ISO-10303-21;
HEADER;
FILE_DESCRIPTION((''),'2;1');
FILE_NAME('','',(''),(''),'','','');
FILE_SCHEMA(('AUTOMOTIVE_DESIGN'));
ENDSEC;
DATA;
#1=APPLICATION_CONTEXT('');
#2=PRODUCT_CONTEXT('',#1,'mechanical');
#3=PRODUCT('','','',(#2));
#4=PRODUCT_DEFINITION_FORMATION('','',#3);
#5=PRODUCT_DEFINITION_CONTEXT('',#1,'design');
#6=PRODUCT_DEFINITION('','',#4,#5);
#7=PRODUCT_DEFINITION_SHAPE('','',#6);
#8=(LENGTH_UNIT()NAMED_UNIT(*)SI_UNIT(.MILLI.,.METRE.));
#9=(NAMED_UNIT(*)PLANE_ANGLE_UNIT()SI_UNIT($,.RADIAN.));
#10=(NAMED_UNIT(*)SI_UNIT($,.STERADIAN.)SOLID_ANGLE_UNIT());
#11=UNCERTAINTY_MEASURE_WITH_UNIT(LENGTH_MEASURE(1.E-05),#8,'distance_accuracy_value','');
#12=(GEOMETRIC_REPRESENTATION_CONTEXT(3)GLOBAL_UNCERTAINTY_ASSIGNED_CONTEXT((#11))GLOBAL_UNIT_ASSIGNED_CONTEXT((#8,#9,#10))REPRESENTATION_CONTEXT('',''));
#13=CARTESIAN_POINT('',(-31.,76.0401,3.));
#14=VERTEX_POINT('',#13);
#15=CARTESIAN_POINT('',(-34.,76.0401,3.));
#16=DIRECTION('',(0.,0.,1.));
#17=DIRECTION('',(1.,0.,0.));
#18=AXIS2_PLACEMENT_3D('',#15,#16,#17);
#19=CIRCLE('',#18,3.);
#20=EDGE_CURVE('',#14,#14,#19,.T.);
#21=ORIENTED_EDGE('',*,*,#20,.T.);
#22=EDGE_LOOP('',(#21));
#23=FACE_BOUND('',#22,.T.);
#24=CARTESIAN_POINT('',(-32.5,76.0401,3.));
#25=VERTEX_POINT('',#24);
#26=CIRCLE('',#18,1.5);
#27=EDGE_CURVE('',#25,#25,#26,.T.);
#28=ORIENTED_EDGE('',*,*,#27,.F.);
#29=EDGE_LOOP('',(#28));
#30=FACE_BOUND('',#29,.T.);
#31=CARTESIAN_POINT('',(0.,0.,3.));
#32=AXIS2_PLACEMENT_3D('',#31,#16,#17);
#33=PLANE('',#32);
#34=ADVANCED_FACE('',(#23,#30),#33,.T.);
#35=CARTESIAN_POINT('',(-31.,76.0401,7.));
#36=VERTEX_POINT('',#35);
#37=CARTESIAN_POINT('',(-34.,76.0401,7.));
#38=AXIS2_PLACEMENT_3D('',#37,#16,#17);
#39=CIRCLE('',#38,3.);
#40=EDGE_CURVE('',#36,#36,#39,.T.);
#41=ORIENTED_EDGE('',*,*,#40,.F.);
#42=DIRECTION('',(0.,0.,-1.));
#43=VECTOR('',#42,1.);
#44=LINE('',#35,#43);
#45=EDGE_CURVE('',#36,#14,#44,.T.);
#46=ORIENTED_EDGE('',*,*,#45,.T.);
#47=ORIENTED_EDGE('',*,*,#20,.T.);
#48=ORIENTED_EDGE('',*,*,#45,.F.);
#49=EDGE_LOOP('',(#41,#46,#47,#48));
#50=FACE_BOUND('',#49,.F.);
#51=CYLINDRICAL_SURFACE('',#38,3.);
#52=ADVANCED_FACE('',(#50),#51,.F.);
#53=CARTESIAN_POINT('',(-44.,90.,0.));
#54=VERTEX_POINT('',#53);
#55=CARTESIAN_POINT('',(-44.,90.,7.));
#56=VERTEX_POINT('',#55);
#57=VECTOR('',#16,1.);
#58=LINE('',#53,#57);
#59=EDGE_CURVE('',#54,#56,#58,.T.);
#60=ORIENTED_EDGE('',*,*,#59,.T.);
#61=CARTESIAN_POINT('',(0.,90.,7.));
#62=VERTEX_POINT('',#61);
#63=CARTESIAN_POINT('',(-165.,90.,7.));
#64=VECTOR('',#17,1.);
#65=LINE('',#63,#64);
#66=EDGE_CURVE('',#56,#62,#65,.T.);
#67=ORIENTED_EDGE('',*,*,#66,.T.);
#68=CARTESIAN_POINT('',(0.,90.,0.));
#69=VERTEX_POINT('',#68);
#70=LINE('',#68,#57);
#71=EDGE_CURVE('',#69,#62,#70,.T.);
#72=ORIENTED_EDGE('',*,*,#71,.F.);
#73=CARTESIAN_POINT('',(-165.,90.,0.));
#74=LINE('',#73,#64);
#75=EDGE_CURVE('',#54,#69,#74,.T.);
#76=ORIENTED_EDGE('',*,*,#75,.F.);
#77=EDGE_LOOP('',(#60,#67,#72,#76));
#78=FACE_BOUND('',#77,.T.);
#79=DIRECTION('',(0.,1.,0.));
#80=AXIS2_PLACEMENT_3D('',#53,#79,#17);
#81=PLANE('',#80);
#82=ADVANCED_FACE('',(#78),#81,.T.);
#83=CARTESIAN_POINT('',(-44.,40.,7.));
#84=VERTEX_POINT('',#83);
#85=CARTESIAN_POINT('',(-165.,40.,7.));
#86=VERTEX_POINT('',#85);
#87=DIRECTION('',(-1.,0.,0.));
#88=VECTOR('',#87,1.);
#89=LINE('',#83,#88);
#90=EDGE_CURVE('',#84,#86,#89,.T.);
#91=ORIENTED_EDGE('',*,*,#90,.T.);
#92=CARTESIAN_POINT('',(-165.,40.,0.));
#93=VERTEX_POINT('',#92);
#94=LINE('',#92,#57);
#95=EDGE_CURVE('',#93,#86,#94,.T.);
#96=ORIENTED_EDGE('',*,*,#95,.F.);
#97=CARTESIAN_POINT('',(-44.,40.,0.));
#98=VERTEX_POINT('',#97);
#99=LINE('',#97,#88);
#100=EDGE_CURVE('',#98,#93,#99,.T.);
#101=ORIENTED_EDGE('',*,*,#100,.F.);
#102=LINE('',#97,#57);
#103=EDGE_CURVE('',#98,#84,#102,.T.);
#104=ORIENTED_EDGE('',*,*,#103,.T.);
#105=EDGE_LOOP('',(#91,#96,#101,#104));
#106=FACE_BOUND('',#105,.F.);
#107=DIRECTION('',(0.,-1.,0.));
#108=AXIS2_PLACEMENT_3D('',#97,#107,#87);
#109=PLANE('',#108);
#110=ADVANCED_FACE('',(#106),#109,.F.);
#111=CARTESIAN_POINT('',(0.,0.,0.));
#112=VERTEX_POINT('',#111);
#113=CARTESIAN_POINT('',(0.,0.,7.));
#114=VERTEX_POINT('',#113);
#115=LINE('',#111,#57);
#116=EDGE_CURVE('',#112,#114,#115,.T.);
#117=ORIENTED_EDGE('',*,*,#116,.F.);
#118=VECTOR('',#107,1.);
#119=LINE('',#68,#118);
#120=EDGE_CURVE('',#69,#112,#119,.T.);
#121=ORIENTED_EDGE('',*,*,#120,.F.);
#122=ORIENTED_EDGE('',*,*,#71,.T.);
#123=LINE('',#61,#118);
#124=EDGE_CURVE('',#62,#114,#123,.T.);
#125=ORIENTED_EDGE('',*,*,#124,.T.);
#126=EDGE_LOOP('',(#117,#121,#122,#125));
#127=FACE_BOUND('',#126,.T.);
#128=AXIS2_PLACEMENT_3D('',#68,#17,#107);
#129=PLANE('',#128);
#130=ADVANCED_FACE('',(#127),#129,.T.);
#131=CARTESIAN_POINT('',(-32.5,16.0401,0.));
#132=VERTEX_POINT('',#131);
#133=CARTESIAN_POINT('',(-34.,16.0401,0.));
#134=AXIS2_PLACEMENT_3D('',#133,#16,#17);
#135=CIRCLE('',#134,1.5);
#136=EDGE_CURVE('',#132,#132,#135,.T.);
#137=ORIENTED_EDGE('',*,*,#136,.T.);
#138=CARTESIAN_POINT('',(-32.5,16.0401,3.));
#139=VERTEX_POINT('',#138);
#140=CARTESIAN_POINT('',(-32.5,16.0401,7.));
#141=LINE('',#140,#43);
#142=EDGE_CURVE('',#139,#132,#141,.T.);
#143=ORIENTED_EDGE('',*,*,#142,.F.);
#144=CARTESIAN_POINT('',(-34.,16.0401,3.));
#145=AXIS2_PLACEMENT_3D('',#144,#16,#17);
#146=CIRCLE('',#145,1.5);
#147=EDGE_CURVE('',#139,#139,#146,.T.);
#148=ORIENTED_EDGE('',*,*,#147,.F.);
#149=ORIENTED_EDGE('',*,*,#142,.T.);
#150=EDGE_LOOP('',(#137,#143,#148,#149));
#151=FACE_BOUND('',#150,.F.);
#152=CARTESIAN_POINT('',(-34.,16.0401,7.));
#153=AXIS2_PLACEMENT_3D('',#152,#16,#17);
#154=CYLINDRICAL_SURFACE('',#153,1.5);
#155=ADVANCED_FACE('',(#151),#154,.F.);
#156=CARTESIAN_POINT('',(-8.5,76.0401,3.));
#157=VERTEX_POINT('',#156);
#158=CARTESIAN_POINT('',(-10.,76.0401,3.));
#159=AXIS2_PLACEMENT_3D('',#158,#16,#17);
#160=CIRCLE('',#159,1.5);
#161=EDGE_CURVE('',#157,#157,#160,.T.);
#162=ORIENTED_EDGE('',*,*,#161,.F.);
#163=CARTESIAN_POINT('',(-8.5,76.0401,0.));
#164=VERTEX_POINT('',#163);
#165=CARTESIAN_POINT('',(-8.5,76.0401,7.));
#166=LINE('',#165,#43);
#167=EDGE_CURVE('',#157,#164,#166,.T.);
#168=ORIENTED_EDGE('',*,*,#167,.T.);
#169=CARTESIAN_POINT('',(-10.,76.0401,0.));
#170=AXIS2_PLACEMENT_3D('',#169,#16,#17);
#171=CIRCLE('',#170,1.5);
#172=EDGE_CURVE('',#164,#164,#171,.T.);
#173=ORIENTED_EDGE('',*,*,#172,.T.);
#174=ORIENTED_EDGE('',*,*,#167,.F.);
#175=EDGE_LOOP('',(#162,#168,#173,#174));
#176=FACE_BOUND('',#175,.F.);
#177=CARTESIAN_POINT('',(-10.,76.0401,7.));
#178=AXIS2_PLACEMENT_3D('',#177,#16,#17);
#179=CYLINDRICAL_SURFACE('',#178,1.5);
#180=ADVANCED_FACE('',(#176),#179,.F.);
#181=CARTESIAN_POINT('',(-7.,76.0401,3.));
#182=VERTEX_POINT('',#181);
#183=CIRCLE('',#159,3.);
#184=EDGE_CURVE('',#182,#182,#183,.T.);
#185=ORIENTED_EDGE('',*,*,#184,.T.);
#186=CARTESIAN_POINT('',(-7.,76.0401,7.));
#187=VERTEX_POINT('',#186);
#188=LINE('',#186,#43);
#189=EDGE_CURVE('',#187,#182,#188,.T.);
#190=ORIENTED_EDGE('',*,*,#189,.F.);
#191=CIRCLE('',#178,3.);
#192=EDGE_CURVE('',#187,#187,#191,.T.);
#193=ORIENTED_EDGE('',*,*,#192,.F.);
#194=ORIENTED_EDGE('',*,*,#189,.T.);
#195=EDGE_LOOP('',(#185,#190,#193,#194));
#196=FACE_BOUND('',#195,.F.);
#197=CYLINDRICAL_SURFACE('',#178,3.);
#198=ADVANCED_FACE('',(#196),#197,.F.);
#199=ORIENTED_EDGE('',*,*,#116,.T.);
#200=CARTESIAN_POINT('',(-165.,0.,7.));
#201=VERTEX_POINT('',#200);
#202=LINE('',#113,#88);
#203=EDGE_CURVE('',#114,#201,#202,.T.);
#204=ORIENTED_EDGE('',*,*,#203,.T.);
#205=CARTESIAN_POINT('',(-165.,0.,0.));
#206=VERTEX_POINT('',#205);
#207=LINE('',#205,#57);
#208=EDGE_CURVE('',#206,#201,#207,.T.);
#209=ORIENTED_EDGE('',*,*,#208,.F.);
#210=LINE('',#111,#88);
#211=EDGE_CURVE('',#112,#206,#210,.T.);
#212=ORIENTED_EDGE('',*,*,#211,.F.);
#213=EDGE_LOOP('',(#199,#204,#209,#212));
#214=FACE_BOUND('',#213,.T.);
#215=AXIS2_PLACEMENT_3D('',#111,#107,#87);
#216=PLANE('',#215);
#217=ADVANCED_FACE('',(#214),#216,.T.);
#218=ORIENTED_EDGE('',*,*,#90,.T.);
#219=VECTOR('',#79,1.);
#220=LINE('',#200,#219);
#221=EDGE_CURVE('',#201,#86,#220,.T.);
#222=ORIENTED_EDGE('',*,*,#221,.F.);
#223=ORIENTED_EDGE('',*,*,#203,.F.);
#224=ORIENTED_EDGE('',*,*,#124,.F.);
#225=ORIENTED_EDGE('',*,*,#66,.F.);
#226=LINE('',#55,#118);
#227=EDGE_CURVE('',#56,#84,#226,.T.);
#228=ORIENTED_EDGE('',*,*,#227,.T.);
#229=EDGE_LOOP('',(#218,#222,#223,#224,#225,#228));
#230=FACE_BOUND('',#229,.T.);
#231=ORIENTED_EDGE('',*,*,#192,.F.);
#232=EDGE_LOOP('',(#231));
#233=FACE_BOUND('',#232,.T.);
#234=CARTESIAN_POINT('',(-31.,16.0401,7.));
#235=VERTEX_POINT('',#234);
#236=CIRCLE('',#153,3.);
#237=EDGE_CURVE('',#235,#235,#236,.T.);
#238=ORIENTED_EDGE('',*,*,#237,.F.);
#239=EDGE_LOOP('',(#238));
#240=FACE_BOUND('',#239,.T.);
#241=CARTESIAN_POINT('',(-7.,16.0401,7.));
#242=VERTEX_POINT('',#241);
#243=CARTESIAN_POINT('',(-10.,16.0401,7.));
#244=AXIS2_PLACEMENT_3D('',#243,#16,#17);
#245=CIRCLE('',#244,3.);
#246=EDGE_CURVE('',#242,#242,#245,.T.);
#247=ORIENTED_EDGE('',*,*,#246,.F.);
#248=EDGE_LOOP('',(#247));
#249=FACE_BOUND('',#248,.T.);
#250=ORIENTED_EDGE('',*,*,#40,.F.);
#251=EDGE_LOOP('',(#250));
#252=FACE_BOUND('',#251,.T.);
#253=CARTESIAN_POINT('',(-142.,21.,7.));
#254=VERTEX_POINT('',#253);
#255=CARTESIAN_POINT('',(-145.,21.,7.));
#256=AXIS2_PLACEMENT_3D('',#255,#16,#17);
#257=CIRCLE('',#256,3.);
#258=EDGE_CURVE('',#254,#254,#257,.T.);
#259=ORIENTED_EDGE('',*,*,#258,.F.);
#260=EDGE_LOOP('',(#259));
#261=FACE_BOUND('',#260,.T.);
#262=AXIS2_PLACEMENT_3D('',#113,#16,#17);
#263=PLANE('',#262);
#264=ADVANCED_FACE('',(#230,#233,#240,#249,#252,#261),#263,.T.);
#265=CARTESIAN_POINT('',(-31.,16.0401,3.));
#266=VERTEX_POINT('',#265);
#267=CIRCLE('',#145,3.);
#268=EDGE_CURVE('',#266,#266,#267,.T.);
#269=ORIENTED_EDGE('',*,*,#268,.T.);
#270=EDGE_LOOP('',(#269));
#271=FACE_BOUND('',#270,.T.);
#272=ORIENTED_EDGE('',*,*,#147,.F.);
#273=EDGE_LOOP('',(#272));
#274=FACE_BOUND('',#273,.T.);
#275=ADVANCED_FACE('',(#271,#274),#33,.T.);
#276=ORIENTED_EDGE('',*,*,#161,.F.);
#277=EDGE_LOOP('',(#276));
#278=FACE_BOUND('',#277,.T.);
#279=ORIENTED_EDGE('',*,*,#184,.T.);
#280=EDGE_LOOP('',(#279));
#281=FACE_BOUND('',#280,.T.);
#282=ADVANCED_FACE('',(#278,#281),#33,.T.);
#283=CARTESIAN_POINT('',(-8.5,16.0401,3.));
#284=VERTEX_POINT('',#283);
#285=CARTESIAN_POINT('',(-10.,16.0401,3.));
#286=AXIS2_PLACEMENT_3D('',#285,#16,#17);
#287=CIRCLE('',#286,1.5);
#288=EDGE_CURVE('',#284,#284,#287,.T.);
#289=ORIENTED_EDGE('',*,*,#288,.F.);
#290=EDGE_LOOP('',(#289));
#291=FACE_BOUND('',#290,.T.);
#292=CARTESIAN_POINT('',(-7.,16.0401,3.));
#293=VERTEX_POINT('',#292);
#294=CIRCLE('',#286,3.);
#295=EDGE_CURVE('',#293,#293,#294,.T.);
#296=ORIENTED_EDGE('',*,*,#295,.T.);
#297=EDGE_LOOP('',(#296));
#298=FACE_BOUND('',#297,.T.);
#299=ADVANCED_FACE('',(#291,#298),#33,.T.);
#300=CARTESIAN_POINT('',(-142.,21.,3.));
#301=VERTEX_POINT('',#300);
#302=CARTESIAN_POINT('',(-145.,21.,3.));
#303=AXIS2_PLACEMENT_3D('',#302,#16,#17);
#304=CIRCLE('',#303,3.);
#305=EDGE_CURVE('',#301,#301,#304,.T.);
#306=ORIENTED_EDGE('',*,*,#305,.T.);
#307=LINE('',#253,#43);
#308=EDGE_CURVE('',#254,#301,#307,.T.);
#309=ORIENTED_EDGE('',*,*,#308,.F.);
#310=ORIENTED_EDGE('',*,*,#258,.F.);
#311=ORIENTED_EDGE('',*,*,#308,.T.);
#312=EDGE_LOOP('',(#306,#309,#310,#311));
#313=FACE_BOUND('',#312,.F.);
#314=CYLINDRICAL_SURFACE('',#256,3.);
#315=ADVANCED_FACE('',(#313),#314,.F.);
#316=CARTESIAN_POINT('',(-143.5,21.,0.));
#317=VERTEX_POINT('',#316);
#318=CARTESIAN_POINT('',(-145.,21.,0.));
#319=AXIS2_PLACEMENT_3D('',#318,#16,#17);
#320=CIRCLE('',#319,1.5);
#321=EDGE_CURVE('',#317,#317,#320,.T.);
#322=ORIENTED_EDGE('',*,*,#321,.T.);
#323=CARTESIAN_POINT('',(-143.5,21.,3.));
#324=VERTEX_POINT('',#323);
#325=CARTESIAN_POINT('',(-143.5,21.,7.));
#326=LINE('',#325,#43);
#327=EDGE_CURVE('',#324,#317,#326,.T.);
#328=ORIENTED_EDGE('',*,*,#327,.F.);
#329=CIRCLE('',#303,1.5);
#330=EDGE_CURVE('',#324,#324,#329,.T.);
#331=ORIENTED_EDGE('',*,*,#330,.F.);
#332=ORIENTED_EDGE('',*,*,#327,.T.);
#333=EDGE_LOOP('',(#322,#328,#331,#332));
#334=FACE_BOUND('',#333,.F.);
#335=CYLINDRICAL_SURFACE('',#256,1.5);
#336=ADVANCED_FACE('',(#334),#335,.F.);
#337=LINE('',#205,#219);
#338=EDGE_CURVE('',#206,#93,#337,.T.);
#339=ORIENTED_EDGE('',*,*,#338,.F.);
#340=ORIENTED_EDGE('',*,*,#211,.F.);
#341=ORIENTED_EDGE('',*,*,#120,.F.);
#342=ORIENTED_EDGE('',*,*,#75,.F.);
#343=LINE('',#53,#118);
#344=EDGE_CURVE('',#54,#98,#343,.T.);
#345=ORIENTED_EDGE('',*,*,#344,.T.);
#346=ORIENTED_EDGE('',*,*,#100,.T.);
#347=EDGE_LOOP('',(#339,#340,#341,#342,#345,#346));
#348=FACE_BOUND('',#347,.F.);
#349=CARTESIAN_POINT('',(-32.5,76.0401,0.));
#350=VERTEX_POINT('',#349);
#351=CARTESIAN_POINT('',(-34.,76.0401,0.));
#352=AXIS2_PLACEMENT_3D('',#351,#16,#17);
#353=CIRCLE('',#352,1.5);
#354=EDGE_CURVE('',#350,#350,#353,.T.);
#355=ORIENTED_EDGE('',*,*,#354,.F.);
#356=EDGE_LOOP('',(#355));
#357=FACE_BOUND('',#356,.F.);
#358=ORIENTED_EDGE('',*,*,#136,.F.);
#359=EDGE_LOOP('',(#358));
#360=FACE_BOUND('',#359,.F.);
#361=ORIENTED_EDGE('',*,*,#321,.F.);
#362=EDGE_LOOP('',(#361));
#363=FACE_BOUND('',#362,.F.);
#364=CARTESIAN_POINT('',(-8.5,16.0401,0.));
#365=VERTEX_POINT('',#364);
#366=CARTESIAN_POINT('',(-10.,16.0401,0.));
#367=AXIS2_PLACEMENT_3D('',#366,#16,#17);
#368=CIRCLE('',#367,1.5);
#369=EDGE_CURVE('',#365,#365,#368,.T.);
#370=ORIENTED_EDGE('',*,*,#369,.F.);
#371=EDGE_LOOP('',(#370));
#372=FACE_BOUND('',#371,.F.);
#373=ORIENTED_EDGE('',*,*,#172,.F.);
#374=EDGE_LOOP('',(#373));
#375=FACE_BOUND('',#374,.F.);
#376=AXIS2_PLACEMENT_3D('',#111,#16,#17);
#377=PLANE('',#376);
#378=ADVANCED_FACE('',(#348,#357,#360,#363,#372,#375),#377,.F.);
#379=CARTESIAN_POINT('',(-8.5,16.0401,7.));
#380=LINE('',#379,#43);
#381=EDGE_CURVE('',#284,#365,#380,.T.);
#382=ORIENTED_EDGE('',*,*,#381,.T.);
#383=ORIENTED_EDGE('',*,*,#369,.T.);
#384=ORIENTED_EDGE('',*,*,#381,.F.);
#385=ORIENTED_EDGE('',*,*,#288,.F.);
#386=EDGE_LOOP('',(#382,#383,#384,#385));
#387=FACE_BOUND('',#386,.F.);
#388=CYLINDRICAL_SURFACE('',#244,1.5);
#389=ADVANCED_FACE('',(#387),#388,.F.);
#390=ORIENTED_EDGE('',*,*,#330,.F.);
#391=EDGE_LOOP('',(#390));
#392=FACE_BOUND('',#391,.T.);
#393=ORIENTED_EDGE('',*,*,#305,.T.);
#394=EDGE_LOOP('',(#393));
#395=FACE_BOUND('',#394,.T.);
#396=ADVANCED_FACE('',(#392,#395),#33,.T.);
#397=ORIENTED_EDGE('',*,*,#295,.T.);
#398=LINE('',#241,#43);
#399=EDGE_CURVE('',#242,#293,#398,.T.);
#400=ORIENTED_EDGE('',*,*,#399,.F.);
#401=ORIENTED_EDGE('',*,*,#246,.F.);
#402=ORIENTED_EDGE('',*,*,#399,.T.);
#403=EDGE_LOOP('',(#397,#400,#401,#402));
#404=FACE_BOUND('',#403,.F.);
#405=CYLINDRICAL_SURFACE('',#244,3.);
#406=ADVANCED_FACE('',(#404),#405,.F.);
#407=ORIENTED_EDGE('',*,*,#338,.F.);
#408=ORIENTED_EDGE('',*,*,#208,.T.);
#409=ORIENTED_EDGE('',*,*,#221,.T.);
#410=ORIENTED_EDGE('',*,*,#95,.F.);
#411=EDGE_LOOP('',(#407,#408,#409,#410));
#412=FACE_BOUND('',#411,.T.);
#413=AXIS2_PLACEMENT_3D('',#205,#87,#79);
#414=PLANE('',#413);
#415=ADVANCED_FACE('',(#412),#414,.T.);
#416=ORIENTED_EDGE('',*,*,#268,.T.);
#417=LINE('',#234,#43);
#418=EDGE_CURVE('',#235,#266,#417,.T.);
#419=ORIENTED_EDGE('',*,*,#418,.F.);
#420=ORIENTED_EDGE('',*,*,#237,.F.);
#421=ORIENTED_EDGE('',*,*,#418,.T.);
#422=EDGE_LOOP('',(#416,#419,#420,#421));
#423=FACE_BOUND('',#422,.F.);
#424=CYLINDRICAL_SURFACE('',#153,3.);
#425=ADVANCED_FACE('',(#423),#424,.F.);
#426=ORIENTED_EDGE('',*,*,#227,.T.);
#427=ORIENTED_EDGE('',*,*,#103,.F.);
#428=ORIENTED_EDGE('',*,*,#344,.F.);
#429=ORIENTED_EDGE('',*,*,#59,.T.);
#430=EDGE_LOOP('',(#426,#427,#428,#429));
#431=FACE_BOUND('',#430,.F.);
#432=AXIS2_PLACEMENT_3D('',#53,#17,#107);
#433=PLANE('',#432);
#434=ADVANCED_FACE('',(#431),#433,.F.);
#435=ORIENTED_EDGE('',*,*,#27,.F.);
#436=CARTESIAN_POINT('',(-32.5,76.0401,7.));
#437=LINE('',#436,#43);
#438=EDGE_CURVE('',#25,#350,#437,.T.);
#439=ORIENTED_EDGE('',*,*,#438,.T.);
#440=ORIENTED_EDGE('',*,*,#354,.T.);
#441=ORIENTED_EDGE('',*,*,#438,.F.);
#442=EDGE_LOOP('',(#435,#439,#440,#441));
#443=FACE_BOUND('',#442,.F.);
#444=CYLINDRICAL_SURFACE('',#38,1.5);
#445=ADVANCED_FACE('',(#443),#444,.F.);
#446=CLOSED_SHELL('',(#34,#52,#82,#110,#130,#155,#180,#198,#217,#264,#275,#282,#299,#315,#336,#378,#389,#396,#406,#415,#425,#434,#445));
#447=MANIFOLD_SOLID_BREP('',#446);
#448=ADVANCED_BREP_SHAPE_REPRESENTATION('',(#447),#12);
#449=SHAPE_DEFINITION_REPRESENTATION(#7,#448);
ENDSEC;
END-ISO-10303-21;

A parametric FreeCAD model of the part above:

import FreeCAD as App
import Part
import Sketcher


def add_polygon(sketch, points):
    """Adds a closed chain of lines whose ends are joined by coincident constraints."""
    first, n = sketch.GeometryCount, len(points)
    for a, b in zip(points, points[1:] + points[:1]):
        sketch.addGeometry(Part.LineSegment(App.Vector(*a, 0), App.Vector(*b, 0)), False)
    for i in range(n):
        sketch.addConstraint(Sketcher.Constraint("Coincident", first + i, 2, first + (i + 1) % n, 1))

doc = App.newDocument("Part")
body = doc.addObject("PartDesign::Body", "Body")

# Sketch on XY plane
sketch1 = body.newObject("Sketcher::SketchObject", "Sketch")
sketch1.AttachmentSupport = (doc.getObject("XY_Plane"), [""])
sketch1.MapMode = "FlatFace"
add_polygon(sketch1, [(-165, 0), (0, 0), (0, 90), (-44, 90), (-44, 40), (-165, 40)])  # lines 0-5
sketch1.addConstraint(Sketcher.Constraint("Horizontal", 0))
sketch1.addConstraint(Sketcher.Constraint("Vertical", 1))
sketch1.addConstraint(Sketcher.Constraint("Horizontal", 2))
sketch1.addConstraint(Sketcher.Constraint("Vertical", 3))
sketch1.addConstraint(Sketcher.Constraint("Horizontal", 4))
sketch1.addConstraint(Sketcher.Constraint("Vertical", 5))
sketch1.addConstraint(Sketcher.Constraint("Coincident", 0, 2, -1, 1))
sketch1.addConstraint(Sketcher.Constraint("DistanceX", 0, 1, 0, 2, 165.0))
sketch1.addConstraint(Sketcher.Constraint("DistanceX", 4, 2, 4, 1, 121.0))
sketch1.addConstraint(Sketcher.Constraint("DistanceY", 1, 1, 1, 2, 90.0))
sketch1.addConstraint(Sketcher.Constraint("DistanceY", 3, 2, 3, 1, 50.0))
pad1 = body.newObject("PartDesign::Pad", "Pad")
pad1.Profile = sketch1
pad1.Length = 7

# Sketch on XY plane
sketch2 = body.newObject("Sketcher::SketchObject", "Sketch001")
sketch2.AttachmentSupport = (doc.getObject("XY_Plane"), [""])
sketch2.MapMode = "FlatFace"
sketch2.AttachmentOffset = App.Placement(App.Vector(0, 0, 7), App.Rotation())
sketch2.addGeometry(Part.Circle(App.Vector(-10, 76, 0), App.Vector(0, 0, 1), 1.5), False)
sketch2.addGeometry(Part.Circle(App.Vector(-34, 76, 0), App.Vector(0, 0, 1), 1.5), False)
sketch2.addGeometry(Part.Circle(App.Vector(-10, 16, 0), App.Vector(0, 0, 1), 1.5), False)
sketch2.addGeometry(Part.Circle(App.Vector(-34, 16, 0), App.Vector(0, 0, 1), 1.5), False)
sketch2.addGeometry(Part.Circle(App.Vector(-145, 21, 0), App.Vector(0, 0, 1), 1.5), False)
sketch2.addConstraint(Sketcher.Constraint("Equal", 0, 1))
sketch2.addConstraint(Sketcher.Constraint("Equal", 1, 2))
sketch2.addConstraint(Sketcher.Constraint("Equal", 2, 3))
sketch2.addConstraint(Sketcher.Constraint("Equal", 3, 4))
sketch2.addConstraint(Sketcher.Constraint("Horizontal", 0, 3, 1, 3))
sketch2.addConstraint(Sketcher.Constraint("Horizontal", 2, 3, 3, 3))
sketch2.addConstraint(Sketcher.Constraint("Vertical", 0, 3, 2, 3))
sketch2.addConstraint(Sketcher.Constraint("Vertical", 1, 3, 3, 3))
sketch2.addConstraint(Sketcher.Constraint("Diameter", 0, 3.0))
sketch2.addConstraint(Sketcher.Constraint("DistanceY", -1, 1, 4, 3, 21.0))
sketch2.addConstraint(Sketcher.Constraint("DistanceX", 1, 3, 0, 3, 24.0))
sketch2.addConstraint(Sketcher.Constraint("DistanceY", 2, 3, 0, 3, 60.0))
sketch2.addConstraint(Sketcher.Constraint("DistanceX", 0, 3, -1, 1, 10.0))
sketch2.addConstraint(Sketcher.Constraint("DistanceX", 4, 3, -1, 1, 145.0))
sketch2.addConstraint(Sketcher.Constraint("DistanceY", -1, 1, 0, 3, 76.04))
pocket1 = body.newObject("PartDesign::Pocket", "Pocket")
pocket1.Profile = sketch2
pocket1.Length = 10

# Sketch on XY plane
sketch3 = body.newObject("Sketcher::SketchObject", "Sketch002")
sketch3.AttachmentSupport = (doc.getObject("XY_Plane"), [""])
sketch3.MapMode = "FlatFace"
sketch3.AttachmentOffset = App.Placement(App.Vector(0, 0, 7), App.Rotation())
sketch3.addGeometry(Part.Circle(App.Vector(-10, 16, 0), App.Vector(0, 0, 1), 3), False)
sketch3.addGeometry(Part.Circle(App.Vector(-10, 16, 0), App.Vector(0, 0, 1), 1.5), False)
sketch3.addGeometry(Part.Circle(App.Vector(-10, 76, 0), App.Vector(0, 0, 1), 3), False)
sketch3.addGeometry(Part.Circle(App.Vector(-10, 76, 0), App.Vector(0, 0, 1), 1.5), False)
sketch3.addGeometry(Part.Circle(App.Vector(-34, 16, 0), App.Vector(0, 0, 1), 3), False)
sketch3.addGeometry(Part.Circle(App.Vector(-34, 76, 0), App.Vector(0, 0, 1), 3), False)
sketch3.addGeometry(Part.Circle(App.Vector(-145, 21, 0), App.Vector(0, 0, 1), 3), False)
sketch3.addGeometry(Part.Circle(App.Vector(-145, 21, 0), App.Vector(0, 0, 1), 1.5), False)
sketch3.addConstraint(Sketcher.Constraint("Coincident", 1, 3, 0, 3))
sketch3.addConstraint(Sketcher.Constraint("Coincident", 3, 3, 2, 3))
sketch3.addConstraint(Sketcher.Constraint("Coincident", 7, 3, 6, 3))
sketch3.addConstraint(Sketcher.Constraint("Equal", 0, 2))
sketch3.addConstraint(Sketcher.Constraint("Equal", 1, 3))
sketch3.addConstraint(Sketcher.Constraint("Equal", 2, 4))
sketch3.addConstraint(Sketcher.Constraint("Equal", 4, 5))
sketch3.addConstraint(Sketcher.Constraint("Equal", 5, 6))
sketch3.addConstraint(Sketcher.Constraint("Equal", 3, 7))
sketch3.addConstraint(Sketcher.Constraint("Horizontal", 1, 3, 4, 3))
sketch3.addConstraint(Sketcher.Constraint("Horizontal", 3, 3, 5, 3))
sketch3.addConstraint(Sketcher.Constraint("Vertical", 1, 3, 2, 3))
sketch3.addConstraint(Sketcher.Constraint("Vertical", 4, 3, 5, 3))
sketch3.addConstraint(Sketcher.Constraint("Diameter", 0, 6.0))
sketch3.addConstraint(Sketcher.Constraint("Diameter", 1, 3.0))
sketch3.addConstraint(Sketcher.Constraint("DistanceX", 0, 3, -1, 1, 10.0))
sketch3.addConstraint(Sketcher.Constraint("DistanceX", 4, 3, -1, 1, 34.0))
sketch3.addConstraint(Sketcher.Constraint("DistanceX", 6, 3, -1, 1, 145.0))
sketch3.addConstraint(Sketcher.Constraint("DistanceY", -1, 1, 6, 3, 21.0))
sketch3.addConstraint(Sketcher.Constraint("DistanceY", 0, 3, 2, 3, 60.0))
sketch3.addConstraint(Sketcher.Constraint("DistanceY", -1, 1, 0, 3, 16.04))
pocket2 = body.newObject("PartDesign::Pocket", "Pocket001")
pocket2.Profile = sketch3
pocket2.Length = 4

doc.recompute()
